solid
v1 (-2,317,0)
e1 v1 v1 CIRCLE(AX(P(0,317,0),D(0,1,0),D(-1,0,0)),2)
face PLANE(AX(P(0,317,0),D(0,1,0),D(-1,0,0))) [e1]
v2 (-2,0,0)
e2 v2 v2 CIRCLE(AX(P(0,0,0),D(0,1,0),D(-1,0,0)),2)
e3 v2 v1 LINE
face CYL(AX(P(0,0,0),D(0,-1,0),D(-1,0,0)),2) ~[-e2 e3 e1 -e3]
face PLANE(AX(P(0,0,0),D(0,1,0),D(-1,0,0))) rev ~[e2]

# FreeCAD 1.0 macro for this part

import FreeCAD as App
import Part
import Sketcher
from FreeCAD import Vector

doc = App.newDocument("Part")
body = doc.addObject("PartDesign::Body", "Body")

# Sketch on XZ plane
sketch1 = body.newObject("Sketcher::SketchObject", "Sketch")
sketch1.AttachmentSupport = (doc.getObject("XZ_Plane"), [""])
sketch1.MapMode = "FlatFace"
sketch1.addGeometry(Part.Circle(Vector(0, 0, 0), Vector(0, 0, 1), 2), False)
sketch1.addConstraint([
    Sketcher.Constraint("Coincident", 0, 3, -1, 1),
    Sketcher.Constraint("Diameter", 0, 4.0),
])
pad1 = body.newObject("PartDesign::Pad", "Pad")
pad1.Profile = sketch1
pad1.Length = 317
pad1.Reversed = True

doc.recompute()
